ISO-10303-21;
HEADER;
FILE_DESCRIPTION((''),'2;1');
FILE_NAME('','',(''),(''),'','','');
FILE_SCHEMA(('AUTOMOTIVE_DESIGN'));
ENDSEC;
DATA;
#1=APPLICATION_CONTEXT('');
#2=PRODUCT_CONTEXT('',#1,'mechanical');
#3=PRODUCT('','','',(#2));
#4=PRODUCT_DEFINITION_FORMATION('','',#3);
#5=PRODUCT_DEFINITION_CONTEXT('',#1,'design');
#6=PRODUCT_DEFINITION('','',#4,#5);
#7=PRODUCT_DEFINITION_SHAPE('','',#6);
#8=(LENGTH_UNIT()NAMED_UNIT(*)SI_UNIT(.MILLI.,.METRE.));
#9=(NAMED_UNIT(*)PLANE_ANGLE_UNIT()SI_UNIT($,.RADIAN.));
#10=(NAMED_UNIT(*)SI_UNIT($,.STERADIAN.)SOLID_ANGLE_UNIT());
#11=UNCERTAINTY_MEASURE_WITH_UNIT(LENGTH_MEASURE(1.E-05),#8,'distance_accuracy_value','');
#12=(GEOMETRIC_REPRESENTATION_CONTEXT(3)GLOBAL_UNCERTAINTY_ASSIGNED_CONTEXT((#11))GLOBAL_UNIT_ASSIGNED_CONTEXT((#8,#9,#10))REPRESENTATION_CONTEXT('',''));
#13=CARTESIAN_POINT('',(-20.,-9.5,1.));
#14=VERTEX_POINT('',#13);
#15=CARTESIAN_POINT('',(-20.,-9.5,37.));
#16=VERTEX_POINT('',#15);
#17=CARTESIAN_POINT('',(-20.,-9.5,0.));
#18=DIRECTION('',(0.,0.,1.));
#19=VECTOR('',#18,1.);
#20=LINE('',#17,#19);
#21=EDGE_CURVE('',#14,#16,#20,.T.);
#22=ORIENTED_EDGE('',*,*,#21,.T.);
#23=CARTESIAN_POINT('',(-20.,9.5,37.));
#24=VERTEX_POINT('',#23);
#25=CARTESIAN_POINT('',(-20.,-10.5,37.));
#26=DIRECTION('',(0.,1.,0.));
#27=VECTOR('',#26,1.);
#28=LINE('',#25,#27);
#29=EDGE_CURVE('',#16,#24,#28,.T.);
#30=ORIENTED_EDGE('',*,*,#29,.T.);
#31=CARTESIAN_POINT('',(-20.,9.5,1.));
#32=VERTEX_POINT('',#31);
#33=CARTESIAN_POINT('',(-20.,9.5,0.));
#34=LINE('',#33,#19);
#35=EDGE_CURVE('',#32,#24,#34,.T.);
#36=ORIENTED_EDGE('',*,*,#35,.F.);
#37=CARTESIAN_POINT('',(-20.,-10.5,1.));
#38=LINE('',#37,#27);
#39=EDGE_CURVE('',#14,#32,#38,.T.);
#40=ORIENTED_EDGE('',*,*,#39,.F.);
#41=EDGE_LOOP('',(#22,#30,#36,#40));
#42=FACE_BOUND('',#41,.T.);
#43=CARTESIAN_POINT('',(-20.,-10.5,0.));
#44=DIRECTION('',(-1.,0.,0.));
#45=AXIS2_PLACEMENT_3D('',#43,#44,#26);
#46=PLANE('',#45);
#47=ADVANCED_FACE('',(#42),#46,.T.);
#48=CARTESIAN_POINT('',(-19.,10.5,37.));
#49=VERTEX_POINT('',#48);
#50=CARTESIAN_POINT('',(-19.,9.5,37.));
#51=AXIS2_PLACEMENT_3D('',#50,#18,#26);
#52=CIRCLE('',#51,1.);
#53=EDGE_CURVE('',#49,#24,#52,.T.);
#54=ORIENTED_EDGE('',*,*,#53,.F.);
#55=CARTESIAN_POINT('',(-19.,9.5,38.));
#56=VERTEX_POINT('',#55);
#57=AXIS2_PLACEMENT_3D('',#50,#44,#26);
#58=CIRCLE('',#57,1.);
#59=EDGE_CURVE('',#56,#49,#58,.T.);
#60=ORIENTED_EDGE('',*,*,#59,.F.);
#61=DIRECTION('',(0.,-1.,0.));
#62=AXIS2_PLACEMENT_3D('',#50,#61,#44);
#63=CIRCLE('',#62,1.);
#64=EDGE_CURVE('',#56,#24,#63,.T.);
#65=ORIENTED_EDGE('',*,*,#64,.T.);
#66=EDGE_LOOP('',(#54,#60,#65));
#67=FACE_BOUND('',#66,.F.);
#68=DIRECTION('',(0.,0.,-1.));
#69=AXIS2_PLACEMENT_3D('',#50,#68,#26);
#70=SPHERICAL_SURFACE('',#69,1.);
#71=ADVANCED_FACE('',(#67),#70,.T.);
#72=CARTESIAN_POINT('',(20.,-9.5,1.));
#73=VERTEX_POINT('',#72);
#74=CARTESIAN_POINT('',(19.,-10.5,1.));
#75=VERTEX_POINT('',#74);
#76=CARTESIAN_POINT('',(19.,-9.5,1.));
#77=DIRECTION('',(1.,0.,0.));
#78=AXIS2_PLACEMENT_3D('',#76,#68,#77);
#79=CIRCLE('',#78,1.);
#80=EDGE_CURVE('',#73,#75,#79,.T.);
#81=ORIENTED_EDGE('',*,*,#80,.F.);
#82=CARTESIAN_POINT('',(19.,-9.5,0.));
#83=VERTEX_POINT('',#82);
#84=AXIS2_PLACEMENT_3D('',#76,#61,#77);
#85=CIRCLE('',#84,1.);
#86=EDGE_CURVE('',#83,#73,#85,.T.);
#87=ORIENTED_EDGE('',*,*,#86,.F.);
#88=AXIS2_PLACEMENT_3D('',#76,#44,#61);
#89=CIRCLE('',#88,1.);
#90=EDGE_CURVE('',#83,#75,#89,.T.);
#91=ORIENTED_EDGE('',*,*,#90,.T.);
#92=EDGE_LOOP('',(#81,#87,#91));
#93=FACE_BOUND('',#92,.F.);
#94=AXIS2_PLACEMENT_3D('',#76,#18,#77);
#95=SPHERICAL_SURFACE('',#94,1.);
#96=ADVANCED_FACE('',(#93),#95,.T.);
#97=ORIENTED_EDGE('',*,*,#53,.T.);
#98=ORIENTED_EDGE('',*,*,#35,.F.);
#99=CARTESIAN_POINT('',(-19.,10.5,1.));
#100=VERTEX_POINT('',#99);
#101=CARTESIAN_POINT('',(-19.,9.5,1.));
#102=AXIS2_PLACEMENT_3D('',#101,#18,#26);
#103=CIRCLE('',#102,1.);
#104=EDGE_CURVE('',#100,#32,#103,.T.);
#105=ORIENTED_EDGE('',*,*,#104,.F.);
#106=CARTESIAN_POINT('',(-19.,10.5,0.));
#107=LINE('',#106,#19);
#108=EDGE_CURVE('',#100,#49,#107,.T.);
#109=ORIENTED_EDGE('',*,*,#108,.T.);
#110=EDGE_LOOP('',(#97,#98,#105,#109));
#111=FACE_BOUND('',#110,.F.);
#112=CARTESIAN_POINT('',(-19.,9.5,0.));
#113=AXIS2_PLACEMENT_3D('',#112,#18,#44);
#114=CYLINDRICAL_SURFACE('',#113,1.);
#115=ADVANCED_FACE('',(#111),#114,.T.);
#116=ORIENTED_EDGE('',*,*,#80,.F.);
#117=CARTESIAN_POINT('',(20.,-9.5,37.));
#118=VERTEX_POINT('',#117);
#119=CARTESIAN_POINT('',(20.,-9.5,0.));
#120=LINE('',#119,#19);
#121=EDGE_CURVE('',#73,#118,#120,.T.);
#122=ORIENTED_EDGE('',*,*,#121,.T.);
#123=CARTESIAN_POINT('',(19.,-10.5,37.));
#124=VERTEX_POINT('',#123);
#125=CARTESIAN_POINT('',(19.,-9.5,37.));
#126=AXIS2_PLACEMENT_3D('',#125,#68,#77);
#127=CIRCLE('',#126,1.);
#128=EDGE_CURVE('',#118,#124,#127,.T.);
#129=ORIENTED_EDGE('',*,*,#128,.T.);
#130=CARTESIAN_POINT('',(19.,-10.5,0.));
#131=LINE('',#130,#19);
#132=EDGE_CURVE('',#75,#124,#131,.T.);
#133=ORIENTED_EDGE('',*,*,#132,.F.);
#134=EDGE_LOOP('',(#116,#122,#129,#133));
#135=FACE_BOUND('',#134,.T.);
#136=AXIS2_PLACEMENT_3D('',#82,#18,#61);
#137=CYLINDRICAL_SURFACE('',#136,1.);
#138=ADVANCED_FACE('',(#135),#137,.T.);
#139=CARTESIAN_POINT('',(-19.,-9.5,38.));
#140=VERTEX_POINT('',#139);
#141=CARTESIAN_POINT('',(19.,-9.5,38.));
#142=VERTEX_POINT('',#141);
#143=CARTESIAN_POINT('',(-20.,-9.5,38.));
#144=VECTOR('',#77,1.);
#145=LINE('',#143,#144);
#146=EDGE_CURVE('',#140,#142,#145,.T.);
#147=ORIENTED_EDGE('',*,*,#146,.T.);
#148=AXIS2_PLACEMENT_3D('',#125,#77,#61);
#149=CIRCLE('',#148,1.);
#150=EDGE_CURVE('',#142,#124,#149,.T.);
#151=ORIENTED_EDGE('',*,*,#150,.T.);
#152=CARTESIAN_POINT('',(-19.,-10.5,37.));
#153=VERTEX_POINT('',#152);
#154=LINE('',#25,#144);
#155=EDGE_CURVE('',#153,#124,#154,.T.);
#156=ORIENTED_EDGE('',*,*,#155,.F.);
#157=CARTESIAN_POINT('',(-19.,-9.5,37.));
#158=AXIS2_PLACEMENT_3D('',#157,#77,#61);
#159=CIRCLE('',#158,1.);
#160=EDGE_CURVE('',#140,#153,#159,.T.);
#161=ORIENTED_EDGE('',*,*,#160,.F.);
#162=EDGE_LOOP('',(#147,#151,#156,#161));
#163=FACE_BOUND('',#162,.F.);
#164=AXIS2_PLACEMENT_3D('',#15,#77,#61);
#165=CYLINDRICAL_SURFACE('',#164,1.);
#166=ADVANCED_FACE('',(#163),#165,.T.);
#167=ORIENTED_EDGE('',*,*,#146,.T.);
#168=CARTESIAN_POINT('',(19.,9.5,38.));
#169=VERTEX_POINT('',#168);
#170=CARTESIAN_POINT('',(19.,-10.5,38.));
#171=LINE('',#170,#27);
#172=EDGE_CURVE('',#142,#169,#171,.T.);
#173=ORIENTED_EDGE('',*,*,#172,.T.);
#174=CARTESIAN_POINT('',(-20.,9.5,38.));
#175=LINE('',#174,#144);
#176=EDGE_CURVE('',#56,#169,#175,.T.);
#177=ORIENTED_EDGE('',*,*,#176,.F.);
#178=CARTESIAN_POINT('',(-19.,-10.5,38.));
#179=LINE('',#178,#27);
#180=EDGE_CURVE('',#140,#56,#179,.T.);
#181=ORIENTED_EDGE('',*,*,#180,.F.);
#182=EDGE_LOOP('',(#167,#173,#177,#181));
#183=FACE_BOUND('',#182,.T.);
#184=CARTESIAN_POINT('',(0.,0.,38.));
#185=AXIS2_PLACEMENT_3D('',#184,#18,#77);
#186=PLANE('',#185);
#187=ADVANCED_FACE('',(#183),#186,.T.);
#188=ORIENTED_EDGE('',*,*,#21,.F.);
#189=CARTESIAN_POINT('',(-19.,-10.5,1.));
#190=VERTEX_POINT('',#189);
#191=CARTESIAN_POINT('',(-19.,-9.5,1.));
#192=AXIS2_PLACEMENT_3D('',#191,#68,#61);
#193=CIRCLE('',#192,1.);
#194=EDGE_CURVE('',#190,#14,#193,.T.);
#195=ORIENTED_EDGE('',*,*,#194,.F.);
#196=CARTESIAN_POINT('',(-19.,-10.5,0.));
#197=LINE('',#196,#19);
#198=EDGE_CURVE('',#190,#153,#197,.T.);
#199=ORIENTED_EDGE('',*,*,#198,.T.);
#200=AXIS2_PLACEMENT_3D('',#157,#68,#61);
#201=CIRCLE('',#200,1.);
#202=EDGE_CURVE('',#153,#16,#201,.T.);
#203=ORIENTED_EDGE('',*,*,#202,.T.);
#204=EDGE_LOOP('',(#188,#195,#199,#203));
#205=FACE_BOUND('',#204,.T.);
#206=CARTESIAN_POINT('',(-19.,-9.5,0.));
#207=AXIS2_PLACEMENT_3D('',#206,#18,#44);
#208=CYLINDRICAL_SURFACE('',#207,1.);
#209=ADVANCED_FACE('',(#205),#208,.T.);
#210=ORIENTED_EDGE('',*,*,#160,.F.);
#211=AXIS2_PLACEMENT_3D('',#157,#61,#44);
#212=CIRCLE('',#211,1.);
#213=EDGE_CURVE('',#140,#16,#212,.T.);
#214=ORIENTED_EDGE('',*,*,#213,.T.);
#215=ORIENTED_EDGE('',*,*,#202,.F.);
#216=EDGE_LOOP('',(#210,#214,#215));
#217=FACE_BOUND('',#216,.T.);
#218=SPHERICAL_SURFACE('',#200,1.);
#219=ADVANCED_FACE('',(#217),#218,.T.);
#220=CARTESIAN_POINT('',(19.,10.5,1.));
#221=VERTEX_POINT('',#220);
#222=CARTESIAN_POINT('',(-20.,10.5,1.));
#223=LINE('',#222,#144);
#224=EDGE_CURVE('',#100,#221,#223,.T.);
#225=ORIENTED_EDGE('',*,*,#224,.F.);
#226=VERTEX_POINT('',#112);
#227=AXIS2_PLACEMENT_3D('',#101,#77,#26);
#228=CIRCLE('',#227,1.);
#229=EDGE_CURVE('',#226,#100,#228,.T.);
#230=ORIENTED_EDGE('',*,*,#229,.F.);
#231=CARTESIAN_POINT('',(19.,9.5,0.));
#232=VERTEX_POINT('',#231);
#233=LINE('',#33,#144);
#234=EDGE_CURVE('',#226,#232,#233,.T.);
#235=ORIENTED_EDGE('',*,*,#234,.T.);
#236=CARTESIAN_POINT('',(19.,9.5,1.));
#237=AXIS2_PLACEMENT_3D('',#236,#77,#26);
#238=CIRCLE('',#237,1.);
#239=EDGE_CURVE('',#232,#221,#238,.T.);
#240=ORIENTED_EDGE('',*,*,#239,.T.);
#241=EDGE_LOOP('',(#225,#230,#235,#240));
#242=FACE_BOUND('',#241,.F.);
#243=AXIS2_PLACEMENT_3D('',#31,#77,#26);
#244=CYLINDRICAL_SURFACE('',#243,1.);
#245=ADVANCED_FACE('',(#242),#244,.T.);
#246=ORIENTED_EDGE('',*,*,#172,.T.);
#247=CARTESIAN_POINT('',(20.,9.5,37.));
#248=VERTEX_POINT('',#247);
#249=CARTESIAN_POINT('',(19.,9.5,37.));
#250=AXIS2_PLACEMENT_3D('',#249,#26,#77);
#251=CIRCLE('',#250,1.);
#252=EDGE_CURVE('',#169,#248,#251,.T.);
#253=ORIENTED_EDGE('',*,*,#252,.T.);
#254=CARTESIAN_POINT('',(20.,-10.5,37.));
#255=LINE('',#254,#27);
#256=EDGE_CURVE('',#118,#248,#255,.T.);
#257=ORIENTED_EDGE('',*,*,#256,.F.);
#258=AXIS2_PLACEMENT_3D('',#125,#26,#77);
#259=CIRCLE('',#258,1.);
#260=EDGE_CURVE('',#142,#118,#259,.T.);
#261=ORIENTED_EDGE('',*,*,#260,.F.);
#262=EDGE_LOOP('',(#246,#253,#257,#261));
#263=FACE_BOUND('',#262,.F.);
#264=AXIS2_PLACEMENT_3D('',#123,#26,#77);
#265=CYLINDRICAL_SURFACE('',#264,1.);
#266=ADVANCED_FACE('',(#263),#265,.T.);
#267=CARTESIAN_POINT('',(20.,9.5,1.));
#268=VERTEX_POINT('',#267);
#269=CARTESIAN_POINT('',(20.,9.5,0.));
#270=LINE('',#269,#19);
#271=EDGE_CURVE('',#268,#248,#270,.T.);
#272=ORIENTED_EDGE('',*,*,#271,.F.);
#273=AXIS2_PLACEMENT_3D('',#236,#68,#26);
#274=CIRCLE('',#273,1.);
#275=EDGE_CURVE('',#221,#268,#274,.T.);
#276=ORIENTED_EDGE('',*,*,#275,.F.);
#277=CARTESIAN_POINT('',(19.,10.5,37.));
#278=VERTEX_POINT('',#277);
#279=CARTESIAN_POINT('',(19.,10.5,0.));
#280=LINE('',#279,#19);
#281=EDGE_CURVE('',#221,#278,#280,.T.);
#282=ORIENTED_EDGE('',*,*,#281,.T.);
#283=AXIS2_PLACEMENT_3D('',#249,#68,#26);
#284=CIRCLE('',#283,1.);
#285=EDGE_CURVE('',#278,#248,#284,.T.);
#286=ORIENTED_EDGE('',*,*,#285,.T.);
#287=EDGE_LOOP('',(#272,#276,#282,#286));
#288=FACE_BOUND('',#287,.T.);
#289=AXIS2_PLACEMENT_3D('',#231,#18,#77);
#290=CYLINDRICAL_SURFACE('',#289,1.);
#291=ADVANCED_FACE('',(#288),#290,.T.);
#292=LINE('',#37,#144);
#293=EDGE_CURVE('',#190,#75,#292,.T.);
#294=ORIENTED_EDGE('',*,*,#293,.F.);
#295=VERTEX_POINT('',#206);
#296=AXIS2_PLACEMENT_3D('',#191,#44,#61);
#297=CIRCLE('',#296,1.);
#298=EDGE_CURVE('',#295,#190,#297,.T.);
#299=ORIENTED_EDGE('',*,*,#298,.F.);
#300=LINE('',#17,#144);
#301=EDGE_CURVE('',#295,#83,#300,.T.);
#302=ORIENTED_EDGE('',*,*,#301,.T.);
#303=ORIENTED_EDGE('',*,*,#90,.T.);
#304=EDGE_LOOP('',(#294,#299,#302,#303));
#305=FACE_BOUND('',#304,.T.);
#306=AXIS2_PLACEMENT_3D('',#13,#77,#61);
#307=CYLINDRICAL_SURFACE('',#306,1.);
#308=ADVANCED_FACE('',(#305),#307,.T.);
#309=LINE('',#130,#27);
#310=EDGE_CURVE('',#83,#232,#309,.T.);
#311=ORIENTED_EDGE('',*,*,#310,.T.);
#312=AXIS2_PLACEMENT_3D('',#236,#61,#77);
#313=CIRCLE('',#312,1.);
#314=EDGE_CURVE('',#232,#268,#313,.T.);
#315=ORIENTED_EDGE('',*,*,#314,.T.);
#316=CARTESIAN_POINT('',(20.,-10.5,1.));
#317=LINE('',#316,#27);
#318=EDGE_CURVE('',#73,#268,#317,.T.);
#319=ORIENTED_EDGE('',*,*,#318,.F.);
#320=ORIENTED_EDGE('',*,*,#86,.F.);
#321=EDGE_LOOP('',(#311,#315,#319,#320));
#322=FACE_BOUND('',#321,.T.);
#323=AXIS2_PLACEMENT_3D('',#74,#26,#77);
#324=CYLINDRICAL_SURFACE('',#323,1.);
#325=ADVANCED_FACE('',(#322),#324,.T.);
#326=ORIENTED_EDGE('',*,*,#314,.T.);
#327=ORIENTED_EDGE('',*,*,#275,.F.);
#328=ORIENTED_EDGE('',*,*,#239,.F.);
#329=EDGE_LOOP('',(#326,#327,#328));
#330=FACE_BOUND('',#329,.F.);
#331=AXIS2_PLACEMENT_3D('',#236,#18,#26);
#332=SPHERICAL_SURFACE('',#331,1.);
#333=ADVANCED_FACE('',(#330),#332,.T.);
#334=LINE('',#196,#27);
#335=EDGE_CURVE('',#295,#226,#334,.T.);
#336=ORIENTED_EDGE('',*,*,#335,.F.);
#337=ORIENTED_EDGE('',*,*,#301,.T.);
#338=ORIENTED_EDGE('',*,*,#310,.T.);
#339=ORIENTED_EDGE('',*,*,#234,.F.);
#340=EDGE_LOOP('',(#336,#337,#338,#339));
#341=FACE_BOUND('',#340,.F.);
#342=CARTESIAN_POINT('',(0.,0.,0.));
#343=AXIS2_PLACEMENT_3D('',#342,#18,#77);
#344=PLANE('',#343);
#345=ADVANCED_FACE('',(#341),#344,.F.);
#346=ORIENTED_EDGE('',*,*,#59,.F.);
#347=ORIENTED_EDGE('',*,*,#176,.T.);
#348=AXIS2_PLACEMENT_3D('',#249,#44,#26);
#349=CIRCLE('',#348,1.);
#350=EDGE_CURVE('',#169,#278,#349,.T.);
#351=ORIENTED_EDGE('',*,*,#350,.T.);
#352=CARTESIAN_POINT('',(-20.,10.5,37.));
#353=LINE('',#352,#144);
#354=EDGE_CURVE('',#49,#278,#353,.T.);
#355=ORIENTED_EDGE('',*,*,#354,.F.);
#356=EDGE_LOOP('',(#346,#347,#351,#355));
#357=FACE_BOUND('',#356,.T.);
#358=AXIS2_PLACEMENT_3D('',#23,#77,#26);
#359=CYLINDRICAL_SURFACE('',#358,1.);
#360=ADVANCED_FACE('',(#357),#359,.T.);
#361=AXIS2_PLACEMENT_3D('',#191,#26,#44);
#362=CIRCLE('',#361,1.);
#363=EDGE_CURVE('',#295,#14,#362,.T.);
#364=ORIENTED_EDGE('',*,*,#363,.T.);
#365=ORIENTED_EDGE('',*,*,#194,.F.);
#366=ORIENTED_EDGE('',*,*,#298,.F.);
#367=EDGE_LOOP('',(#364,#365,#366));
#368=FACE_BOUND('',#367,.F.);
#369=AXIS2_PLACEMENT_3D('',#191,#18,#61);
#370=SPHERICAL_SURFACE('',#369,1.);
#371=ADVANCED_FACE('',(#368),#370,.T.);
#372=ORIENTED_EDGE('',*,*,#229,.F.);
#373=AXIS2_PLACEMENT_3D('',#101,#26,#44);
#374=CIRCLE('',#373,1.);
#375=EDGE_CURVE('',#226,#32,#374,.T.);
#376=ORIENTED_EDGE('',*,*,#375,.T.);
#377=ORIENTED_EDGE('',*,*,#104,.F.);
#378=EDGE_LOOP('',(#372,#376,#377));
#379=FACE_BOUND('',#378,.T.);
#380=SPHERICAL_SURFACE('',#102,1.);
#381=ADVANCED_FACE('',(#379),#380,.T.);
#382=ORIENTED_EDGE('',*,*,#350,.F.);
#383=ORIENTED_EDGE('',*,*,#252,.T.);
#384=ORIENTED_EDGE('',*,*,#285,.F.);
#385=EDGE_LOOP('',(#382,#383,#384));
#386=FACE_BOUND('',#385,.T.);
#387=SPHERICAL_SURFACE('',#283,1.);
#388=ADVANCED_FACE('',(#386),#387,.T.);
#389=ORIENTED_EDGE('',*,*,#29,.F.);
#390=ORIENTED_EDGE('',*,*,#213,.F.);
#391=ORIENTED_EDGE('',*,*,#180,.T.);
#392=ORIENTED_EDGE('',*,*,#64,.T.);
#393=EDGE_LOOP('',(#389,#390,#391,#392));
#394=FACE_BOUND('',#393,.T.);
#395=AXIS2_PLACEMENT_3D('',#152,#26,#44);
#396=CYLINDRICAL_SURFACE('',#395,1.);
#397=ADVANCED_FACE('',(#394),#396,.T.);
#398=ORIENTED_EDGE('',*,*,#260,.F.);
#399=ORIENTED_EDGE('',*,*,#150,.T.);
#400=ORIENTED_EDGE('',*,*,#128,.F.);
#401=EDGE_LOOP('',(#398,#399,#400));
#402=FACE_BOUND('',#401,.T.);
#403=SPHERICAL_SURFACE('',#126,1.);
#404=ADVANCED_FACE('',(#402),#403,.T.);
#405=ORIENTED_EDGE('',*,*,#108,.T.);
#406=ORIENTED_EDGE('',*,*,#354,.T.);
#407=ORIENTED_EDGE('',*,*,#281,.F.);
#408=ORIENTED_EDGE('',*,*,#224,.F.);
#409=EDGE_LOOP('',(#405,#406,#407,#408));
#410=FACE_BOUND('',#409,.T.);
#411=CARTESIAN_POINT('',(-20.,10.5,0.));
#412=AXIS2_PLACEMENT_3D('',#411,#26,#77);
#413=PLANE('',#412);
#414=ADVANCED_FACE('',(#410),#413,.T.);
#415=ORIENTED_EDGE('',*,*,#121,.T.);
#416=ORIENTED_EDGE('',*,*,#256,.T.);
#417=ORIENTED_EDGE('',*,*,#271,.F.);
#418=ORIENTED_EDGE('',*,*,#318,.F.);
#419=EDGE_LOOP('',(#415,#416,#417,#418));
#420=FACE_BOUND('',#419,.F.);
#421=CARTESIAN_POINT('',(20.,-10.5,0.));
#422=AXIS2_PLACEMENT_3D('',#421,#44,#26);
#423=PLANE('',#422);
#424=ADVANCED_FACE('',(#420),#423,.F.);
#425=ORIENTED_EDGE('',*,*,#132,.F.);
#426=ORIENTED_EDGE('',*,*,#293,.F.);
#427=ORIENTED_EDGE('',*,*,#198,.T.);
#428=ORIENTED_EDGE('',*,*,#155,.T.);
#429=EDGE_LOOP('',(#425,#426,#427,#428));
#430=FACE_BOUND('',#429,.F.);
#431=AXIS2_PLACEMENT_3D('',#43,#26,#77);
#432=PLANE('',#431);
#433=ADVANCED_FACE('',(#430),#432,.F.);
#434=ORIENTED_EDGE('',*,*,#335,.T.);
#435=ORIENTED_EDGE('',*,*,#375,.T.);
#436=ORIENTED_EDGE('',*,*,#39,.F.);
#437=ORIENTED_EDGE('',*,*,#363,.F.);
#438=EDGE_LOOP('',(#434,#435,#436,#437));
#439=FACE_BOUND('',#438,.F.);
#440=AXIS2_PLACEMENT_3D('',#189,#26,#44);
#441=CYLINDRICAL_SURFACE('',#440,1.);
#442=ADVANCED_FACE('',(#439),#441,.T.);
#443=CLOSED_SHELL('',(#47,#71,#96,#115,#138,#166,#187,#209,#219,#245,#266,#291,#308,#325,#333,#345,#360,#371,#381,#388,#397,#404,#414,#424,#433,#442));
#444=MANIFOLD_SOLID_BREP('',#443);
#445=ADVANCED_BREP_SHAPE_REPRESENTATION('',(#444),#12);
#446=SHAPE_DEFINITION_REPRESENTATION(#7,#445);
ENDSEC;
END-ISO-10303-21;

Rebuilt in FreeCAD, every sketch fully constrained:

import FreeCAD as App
import Part
import Sketcher

doc = App.newDocument("Part")
body = doc.addObject("PartDesign::Body", "Body")

# Sketch on XY plane
sketch1 = body.newObject("Sketcher::SketchObject", "Sketch")
sketch1.AttachmentSupport = (doc.getObject("XY_Plane"), [""])
sketch1.MapMode = "FlatFace"
sketch1.addGeometry([
    Part.LineSegment(App.Vector(-20, 10, 0), App.Vector(-20, -10, 0)),
    Part.LineSegment(App.Vector(-20, -10, 0), App.Vector(20, -10, 0)),
    Part.LineSegment(App.Vector(20, -10, 0), App.Vector(20, 10, 0)),
    Part.LineSegment(App.Vector(20, 10, 0), App.Vector(-20, 10, 0)),
], False)
sketch1.addConstraint([
    Sketcher.Constraint("Coincident", 0, 2, 1, 1),
    Sketcher.Constraint("Coincident", 1, 2, 2, 1),
    Sketcher.Constraint("Coincident", 2, 2, 3, 1),
    Sketcher.Constraint("Coincident", 3, 2, 0, 1),
    Sketcher.Constraint("Vertical", 0),
    Sketcher.Constraint("Horizontal", 1),
    Sketcher.Constraint("Vertical", 2),
    Sketcher.Constraint("Horizontal", 3),
    Sketcher.Constraint("Symmetric", 0, 2, 2, 2, -1, 1),
    Sketcher.Constraint("DistanceX", 1, 1, 1, 2, 40.0),
    Sketcher.Constraint("DistanceY", 0, 2, 0, 1, 21.0),
])
pad1 = body.newObject("PartDesign::Pad", "Pad")
pad1.Profile = sketch1
pad1.Length = 38
doc.recompute()

fillet = body.newObject("PartDesign::Fillet", "Fillet")
fillet.Base = (pad1, ["Edge1"])
fillet.UseAllEdges = True
fillet.Radius = 1

doc.recompute()
